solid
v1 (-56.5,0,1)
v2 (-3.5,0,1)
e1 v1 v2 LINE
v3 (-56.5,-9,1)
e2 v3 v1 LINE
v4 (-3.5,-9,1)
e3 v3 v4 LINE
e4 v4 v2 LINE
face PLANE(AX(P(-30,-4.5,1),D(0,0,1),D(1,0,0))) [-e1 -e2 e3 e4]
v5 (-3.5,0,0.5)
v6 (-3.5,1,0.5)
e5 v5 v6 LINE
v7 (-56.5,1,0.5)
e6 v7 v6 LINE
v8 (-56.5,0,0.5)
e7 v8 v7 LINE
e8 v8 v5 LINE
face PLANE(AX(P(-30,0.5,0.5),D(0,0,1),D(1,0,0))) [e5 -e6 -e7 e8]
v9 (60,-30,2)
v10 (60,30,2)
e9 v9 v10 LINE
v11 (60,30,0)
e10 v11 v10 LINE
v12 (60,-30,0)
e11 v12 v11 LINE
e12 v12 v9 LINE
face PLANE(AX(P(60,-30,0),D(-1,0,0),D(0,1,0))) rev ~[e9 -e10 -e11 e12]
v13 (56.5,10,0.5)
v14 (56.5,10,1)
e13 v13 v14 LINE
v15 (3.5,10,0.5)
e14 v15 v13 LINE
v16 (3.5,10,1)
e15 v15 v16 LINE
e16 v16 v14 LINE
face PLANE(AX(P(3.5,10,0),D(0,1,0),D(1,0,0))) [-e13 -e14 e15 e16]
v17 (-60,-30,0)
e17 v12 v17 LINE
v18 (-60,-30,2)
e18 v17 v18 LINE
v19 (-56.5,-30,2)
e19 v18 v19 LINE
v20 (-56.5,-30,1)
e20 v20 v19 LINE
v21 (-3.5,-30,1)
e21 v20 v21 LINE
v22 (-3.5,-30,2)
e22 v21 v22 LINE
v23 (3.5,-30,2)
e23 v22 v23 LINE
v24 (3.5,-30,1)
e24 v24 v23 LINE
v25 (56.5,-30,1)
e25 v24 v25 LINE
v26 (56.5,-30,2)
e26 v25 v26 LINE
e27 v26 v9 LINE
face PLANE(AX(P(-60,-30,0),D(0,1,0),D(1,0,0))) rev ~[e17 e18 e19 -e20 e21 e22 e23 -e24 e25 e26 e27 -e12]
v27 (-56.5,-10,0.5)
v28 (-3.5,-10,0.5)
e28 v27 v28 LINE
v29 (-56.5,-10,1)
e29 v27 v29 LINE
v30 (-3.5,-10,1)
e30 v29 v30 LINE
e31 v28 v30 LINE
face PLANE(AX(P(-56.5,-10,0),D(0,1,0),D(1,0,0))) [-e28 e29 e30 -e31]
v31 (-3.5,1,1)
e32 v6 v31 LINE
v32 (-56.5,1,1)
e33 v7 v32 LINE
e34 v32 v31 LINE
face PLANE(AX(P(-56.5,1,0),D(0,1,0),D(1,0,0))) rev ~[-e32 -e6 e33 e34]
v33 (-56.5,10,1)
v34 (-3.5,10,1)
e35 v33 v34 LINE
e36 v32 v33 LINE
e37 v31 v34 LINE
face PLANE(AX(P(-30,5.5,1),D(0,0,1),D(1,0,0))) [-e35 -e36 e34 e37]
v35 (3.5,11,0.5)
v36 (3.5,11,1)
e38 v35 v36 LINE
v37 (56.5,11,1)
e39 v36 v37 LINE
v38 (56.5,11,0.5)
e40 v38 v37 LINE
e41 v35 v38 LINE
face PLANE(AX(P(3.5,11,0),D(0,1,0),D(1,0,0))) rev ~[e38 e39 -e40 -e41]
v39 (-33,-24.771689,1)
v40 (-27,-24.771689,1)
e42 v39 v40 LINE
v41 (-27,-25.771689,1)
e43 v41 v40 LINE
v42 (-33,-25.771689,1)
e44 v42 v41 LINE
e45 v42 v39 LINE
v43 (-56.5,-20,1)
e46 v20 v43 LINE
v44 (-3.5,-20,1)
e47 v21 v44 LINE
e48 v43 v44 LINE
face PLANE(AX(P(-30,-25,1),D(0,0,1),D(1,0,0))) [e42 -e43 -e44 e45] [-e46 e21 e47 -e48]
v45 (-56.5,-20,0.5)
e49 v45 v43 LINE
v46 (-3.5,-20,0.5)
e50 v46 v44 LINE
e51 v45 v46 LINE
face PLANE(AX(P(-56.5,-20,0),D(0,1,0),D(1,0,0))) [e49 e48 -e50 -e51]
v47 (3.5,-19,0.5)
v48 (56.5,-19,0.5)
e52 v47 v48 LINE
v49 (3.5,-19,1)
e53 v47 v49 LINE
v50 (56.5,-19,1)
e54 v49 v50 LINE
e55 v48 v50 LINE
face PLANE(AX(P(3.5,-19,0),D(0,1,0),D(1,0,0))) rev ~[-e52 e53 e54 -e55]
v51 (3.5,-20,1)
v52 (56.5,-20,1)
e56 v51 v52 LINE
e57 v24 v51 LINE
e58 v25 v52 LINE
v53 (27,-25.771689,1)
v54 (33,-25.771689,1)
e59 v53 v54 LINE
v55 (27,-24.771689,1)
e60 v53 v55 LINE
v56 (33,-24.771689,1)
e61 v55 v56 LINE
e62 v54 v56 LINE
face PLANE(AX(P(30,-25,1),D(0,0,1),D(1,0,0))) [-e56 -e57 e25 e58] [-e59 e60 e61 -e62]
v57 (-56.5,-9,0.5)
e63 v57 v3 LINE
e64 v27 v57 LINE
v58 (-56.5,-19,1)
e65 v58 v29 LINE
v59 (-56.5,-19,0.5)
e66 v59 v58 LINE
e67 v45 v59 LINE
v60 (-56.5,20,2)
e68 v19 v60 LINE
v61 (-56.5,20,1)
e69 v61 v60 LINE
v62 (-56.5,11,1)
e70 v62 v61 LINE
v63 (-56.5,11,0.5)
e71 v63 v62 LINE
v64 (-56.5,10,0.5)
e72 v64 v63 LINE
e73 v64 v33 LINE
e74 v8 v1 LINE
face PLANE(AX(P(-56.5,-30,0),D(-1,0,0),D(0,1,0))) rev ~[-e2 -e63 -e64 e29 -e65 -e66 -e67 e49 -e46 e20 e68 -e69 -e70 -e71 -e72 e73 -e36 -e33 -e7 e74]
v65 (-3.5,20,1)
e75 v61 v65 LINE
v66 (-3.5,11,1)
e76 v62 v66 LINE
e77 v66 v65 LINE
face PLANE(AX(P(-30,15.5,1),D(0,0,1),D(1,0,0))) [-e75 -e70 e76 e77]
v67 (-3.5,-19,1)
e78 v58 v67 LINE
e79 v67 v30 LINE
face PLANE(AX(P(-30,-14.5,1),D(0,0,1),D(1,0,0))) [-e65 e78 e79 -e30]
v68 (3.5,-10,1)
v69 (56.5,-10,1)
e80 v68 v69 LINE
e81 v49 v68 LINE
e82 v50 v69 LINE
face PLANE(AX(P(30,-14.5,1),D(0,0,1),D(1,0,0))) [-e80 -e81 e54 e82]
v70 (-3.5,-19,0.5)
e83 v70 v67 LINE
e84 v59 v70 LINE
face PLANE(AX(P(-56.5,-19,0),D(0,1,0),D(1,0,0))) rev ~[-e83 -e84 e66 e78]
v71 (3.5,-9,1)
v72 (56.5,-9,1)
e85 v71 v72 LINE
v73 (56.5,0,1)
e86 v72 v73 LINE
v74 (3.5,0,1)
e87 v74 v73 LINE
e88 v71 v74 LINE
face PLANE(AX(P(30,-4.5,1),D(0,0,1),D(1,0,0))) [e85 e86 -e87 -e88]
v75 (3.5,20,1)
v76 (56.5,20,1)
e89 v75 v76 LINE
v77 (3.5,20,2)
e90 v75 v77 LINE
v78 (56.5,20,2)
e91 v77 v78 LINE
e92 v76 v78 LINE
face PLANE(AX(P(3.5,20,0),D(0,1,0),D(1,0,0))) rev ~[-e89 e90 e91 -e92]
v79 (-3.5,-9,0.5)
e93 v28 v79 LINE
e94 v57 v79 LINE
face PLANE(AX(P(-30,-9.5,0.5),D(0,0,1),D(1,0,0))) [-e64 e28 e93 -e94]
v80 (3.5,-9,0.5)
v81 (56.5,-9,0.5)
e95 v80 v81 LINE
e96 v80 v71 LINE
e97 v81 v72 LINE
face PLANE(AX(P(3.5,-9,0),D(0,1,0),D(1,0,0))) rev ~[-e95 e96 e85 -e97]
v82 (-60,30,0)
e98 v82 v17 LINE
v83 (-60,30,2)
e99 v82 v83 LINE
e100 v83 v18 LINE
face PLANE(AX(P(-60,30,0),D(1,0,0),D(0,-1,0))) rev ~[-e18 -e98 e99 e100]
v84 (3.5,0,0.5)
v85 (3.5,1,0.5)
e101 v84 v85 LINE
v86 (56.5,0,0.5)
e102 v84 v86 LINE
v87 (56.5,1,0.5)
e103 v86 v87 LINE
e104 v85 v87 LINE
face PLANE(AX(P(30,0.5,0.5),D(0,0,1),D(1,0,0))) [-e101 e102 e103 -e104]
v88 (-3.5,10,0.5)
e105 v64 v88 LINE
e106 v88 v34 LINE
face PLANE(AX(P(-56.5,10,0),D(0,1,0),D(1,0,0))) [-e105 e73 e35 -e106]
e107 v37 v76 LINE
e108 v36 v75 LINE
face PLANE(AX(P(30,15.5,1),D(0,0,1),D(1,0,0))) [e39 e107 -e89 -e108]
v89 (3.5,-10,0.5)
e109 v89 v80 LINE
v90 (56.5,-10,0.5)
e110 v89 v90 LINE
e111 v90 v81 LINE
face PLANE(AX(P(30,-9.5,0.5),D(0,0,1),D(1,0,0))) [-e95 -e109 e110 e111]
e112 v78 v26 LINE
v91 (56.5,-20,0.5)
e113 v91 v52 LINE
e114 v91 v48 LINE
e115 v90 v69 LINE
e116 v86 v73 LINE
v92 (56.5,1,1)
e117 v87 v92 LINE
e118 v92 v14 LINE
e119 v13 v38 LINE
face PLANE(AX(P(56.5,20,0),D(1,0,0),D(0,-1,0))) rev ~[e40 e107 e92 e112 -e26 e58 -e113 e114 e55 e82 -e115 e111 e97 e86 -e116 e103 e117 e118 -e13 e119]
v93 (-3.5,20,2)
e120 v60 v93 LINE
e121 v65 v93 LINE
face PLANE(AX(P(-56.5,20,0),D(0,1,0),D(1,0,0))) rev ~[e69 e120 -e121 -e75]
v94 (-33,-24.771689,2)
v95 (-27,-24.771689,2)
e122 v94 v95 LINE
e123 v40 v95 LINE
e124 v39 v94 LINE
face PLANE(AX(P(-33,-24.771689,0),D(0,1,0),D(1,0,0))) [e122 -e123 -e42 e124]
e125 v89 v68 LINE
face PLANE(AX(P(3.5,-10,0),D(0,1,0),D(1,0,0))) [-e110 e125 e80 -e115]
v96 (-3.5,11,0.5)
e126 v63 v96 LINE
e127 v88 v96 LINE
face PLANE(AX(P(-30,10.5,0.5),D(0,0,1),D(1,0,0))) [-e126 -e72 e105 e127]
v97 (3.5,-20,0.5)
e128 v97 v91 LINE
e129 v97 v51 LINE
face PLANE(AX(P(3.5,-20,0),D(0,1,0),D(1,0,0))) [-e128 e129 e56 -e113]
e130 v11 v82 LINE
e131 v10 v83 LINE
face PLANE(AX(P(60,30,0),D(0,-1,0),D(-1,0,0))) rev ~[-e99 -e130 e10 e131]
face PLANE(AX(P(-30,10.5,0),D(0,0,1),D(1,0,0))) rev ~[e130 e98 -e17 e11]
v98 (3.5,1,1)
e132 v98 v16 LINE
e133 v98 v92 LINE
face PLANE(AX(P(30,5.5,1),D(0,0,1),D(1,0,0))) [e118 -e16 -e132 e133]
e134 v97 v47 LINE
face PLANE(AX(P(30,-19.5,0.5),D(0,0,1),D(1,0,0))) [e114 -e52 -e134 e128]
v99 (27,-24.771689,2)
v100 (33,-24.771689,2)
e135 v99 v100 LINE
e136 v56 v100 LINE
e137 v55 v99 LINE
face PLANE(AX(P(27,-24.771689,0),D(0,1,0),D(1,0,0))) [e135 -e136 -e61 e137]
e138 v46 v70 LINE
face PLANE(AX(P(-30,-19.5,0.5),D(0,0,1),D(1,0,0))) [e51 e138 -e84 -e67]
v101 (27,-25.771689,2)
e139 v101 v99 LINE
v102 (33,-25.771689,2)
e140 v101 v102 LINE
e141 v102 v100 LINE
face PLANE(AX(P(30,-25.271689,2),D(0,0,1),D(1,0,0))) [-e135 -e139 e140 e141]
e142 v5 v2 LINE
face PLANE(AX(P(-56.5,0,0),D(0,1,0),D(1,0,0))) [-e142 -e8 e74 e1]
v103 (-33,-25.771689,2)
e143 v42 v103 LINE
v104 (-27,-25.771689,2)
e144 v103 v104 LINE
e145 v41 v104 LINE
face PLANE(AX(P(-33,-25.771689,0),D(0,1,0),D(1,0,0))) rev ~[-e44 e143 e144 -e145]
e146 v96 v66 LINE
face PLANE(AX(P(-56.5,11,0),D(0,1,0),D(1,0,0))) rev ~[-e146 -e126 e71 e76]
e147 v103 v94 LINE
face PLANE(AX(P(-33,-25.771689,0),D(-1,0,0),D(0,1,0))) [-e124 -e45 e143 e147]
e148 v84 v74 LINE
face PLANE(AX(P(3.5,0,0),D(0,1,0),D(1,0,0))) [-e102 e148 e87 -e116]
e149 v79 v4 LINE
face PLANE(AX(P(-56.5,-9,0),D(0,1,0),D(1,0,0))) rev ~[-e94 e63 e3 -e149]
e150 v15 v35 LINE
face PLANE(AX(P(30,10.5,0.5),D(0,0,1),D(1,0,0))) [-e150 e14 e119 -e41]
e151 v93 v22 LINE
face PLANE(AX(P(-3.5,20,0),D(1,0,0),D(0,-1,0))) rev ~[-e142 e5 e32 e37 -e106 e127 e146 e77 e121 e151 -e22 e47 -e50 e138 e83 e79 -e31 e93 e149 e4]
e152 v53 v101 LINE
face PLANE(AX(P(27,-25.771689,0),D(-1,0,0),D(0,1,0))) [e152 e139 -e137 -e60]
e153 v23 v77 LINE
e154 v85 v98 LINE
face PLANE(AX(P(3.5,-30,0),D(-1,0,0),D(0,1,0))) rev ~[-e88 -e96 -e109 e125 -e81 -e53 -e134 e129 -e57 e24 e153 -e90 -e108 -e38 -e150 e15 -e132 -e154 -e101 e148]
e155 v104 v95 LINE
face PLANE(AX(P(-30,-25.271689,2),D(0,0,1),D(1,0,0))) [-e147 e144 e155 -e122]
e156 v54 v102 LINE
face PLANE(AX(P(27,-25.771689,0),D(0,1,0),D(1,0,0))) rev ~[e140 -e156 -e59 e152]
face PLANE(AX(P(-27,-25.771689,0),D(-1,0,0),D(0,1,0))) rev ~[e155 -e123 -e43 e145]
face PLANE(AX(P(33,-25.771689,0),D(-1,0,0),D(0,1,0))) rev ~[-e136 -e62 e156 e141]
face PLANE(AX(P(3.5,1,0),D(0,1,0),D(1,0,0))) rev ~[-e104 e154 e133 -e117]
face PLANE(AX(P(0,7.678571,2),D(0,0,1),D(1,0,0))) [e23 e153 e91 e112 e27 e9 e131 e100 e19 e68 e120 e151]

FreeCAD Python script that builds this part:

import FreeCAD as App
import Part
import Sketcher
from FreeCAD import Vector


def add_polygon(sketch, points):
    """Adds a closed chain of lines whose ends are joined by coincident constraints."""
    first, n = sketch.GeometryCount, len(points)
    for a, b in zip(points, points[1:] + points[:1]):
        sketch.addGeometry(Part.LineSegment(App.Vector(*a, 0), App.Vector(*b, 0)), False)
    for i in range(n):
        sketch.addConstraint(Sketcher.Constraint("Coincident", first + i, 2, first + (i + 1) % n, 1))

doc = App.newDocument("Part")
body = doc.addObject("PartDesign::Body", "Body")

sketch1 = body.newObject("Sketcher::SketchObject", "Sketch")
sketch1.AttachmentSupport = (doc.getObject("XY_Plane"), [""])
sketch1.MapMode = "FlatFace"
add_polygon(sketch1, [(56.5, -30), (60, -30), (60, 30), (-60, 30), (-60, -30), (-56.5, -30), (-56.5, 20), (-3.5, 20), (-3.5, -30), (3.5, -30), (3.5, 20), (56.5, 20)])
sketch1.addConstraint([
    Sketcher.Constraint("Horizontal", 0),
    Sketcher.Constraint("Vertical", 1),
    Sketcher.Constraint("Horizontal", 2),
    Sketcher.Constraint("Vertical", 3),
    Sketcher.Constraint("Horizontal", 4),
    Sketcher.Constraint("Vertical", 5),
    Sketcher.Constraint("Horizontal", 6),
    Sketcher.Constraint("Vertical", 7),
    Sketcher.Constraint("Horizontal", 8),
    Sketcher.Constraint("Vertical", 9),
    Sketcher.Constraint("Horizontal", 10),
    Sketcher.Constraint("Vertical", 11),
    Sketcher.Constraint("Symmetric", 0, 2, 2, 2, -1, 1),
    Sketcher.Constraint("Symmetric", 6, 2, 9, 2, -2),
    Sketcher.Constraint("Symmetric", 4, 2, 11, 2, -2),
    Sketcher.Constraint("Horizontal", 4, 2, 7, 2),
    Sketcher.Constraint("DistanceX", 2, 2, 2, 1, 120.0),
    Sketcher.Constraint("DistanceX", 6, 1, 6, 2, 53.0),
    Sketcher.Constraint("DistanceX", 8, 1, 8, 2, 7.0),
    Sketcher.Constraint("DistanceY", 1, 1, 1, 2, 60.0),
    Sketcher.Constraint("DistanceY", 5, 1, 5, 2, 50.0),
])
pad1 = body.newObject("PartDesign::Pad", "Pad")
pad1.Profile = sketch1
pad1.Length = 2

sketch2 = body.newObject("Sketcher::SketchObject", "Sketch001")
sketch2.AttachmentSupport = (doc.getObject("XY_Plane"), [""])
sketch2.MapMode = "FlatFace"
add_polygon(sketch2, [(-56.5, 20), (-56.5, 11), (-3.5, 11), (-3.5, 20)])
add_polygon(sketch2, [(-56.5, 10), (-56.5, 1), (-3.5, 1), (-3.5, 10)])
add_polygon(sketch2, [(-56.5, 0), (-56.5, -9), (-3.5, -9), (-3.5, 0)])
add_polygon(sketch2, [(-56.5, -10), (-56.5, -19), (-3.5, -19), (-3.5, -10)])
add_polygon(sketch2, [(-56.5, -20), (-56.5, -30), (-3.5, -30), (-3.5, -20)])
add_polygon(sketch2, [(-27, -25.8), (-33, -25.8), (-33, -24.8), (-27, -24.8)])
add_polygon(sketch2, [(3.5, -20), (3.5, -30), (56.5, -30), (56.5, -20)])
add_polygon(sketch2, [(33, -25.8), (27, -25.8), (27, -24.8), (33, -24.8)])
add_polygon(sketch2, [(3.5, -10), (3.5, -19), (56.5, -19), (56.5, -10)])
add_polygon(sketch2, [(3.5, 0), (3.5, -9), (56.5, -9), (56.5, 0)])
add_polygon(sketch2, [(3.5, 10), (3.5, 1), (56.5, 1), (56.5, 10)])
add_polygon(sketch2, [(3.5, 20), (3.5, 11), (56.5, 11), (56.5, 20)])
sketch2.addConstraint([
    Sketcher.Constraint("Vertical", 0),
    Sketcher.Constraint("Horizontal", 1),
    Sketcher.Constraint("Vertical", 2),
    Sketcher.Constraint("Horizontal", 3),
    Sketcher.Constraint("Vertical", 4),
    Sketcher.Constraint("Horizontal", 5),
    Sketcher.Constraint("Vertical", 6),
    Sketcher.Constraint("Horizontal", 7),
    Sketcher.Constraint("Vertical", 8),
    Sketcher.Constraint("Horizontal", 9),
    Sketcher.Constraint("Vertical", 10),
    Sketcher.Constraint("Horizontal", 11),
    Sketcher.Constraint("Vertical", 12),
    Sketcher.Constraint("Horizontal", 13),
    Sketcher.Constraint("Vertical", 14),
    Sketcher.Constraint("Horizontal", 15),
    Sketcher.Constraint("Vertical", 16),
    Sketcher.Constraint("Horizontal", 17),
    Sketcher.Constraint("Vertical", 18),
    Sketcher.Constraint("Horizontal", 19),
    Sketcher.Constraint("Horizontal", 20),
    Sketcher.Constraint("Vertical", 21),
    Sketcher.Constraint("Horizontal", 22),
    Sketcher.Constraint("Vertical", 23),
    Sketcher.Constraint("Vertical", 24),
    Sketcher.Constraint("Horizontal", 25),
    Sketcher.Constraint("Vertical", 26),
    Sketcher.Constraint("Horizontal", 27),
    Sketcher.Constraint("Horizontal", 28),
    Sketcher.Constraint("Vertical", 29),
    Sketcher.Constraint("Horizontal", 30),
    Sketcher.Constraint("Vertical", 31),
    Sketcher.Constraint("Vertical", 32),
    Sketcher.Constraint("Horizontal", 33),
    Sketcher.Constraint("Vertical", 34),
    Sketcher.Constraint("Horizontal", 35),
    Sketcher.Constraint("Vertical", 36),
    Sketcher.Constraint("Horizontal", 37),
    Sketcher.Constraint("Vertical", 38),
    Sketcher.Constraint("Horizontal", 39),
    Sketcher.Constraint("Vertical", 40),
    Sketcher.Constraint("Horizontal", 41),
    Sketcher.Constraint("Vertical", 42),
    Sketcher.Constraint("Horizontal", 43),
    Sketcher.Constraint("Vertical", 44),
    Sketcher.Constraint("Horizontal", 45),
    Sketcher.Constraint("Vertical", 46),
    Sketcher.Constraint("Horizontal", 47),
    Sketcher.Constraint("Symmetric", 3, 2, 26, 2, -1, 1),
    Sketcher.Constraint("Symmetric", 7, 2, 34, 2, -1, 1),
    Sketcher.Constraint("Symmetric", 11, 2, 38, 2, -1, 1),
    Sketcher.Constraint("Symmetric", 15, 2, 42, 2, -1, 1),
    Sketcher.Constraint("Symmetric", 19, 2, 46, 2, -1, 1),
    Sketcher.Constraint("Symmetric", 17, 2, 24, 2, -2),
    Sketcher.Constraint("Symmetric", 19, 2, 26, 2, -2),
    Sketcher.Constraint("Symmetric", 23, 2, 28, 2, -2),
    Sketcher.Constraint("Symmetric", 21, 2, 30, 2, -2),
    Sketcher.Constraint("Symmetric", 13, 2, 32, 2, -2),
    Sketcher.Constraint("Symmetric", 15, 2, 34, 2, -2),
    Sketcher.Constraint("Symmetric", 9, 2, 36, 2, -2),
    Sketcher.Constraint("Symmetric", 5, 2, 40, 2, -2),
    Sketcher.Constraint("Symmetric", 1, 2, 44, 2, -2),
    Sketcher.Constraint("PointOnObject", 10, 2, -1),
    Sketcher.Constraint("Vertical", 3, 2, 4, 2),
    Sketcher.Constraint("Vertical", 2, 2, 5, 2),
    Sketcher.Constraint("Vertical", 7, 2, 8, 2),
    Sketcher.Constraint("Vertical", 6, 2, 9, 2),
    Sketcher.Constraint("Vertical", 10, 2, 13, 2),
    Sketcher.Constraint("Vertical", 14, 2, 17, 2),
    Sketcher.Constraint("Equal", 2, 4),
    Sketcher.Constraint("Equal", 6, 8),
    Sketcher.Constraint("Equal", 10, 12),
    Sketcher.Constraint("DistanceX", 1, 1, 1, 2, 53.0),
    Sketcher.Constraint("DistanceX", 20, 2, 20, 1, 6.0),
    Sketcher.Constraint("DistanceY", 0, 2, 0, 1, 9.0),
    Sketcher.Constraint("DistanceY", 16, 2, 16, 1, 10.0),
    Sketcher.Constraint("DistanceY", 21, 1, 21, 2, 1.0),
    Sketcher.Constraint("DistanceY", -1, 1, 0, 2, 11.0),
    Sketcher.Constraint("DistanceY", -1, 1, 4, 2, 1.0),
    Sketcher.Constraint("DistanceX", 20, 2, -1, 1, 33.0),
    Sketcher.Constraint("DistanceX", 17, 2, 24, 2, 7.0),
    Sketcher.Constraint("DistanceY", 20, 2, -1, 1, 25.771689),
])
pad2 = body.newObject("PartDesign::Pad", "Pad001")
pad2.Profile = sketch2
pad2.Length = 1

sketch3 = body.newObject("Sketcher::SketchObject", "Sketch002")
sketch3.AttachmentSupport = (doc.getObject("XY_Plane"), [""])
sketch3.MapMode = "FlatFace"
add_polygon(sketch3, [(-56.5, 11), (-56.5, 10), (-3.5, 10), (-3.5, 11)])
add_polygon(sketch3, [(-56.5, 1), (-56.5, 0), (-3.5, 0), (-3.5, 1)])
add_polygon(sketch3, [(-56.5, -9), (-56.5, -10), (-3.5, -10), (-3.5, -9)])
add_polygon(sketch3, [(-56.5, -19), (-56.5, -20), (-3.5, -20), (-3.5, -19)])
add_polygon(sketch3, [(3.5, -19), (3.5, -20), (56.5, -20), (56.5, -19)])
add_polygon(sketch3, [(3.5, -9), (3.5, -10), (56.5, -10), (56.5, -9)])
add_polygon(sketch3, [(3.5, 1), (3.5, 0), (56.5, 0), (56.5, 1)])
add_polygon(sketch3, [(3.5, 11), (3.5, 10), (56.5, 10), (56.5, 11)])
sketch3.addConstraint([
    Sketcher.Constraint("Vertical", 0),
    Sketcher.Constraint("Horizontal", 1),
    Sketcher.Constraint("Vertical", 2),
    Sketcher.Constraint("Horizontal", 3),
    Sketcher.Constraint("Vertical", 4),
    Sketcher.Constraint("Horizontal", 5),
    Sketcher.Constraint("Vertical", 6),
    Sketcher.Constraint("Horizontal", 7),
    Sketcher.Constraint("Vertical", 8),
    Sketcher.Constraint("Horizontal", 9),
    Sketcher.Constraint("Vertical", 10),
    Sketcher.Constraint("Horizontal", 11),
    Sketcher.Constraint("Vertical", 12),
    Sketcher.Constraint("Horizontal", 13),
    Sketcher.Constraint("Vertical", 14),
    Sketcher.Constraint("Horizontal", 15),
    Sketcher.Constraint("Vertical", 16),
    Sketcher.Constraint("Horizontal", 17),
    Sketcher.Constraint("Vertical", 18),
    Sketcher.Constraint("Horizontal", 19),
    Sketcher.Constraint("Vertical", 20),
    Sketcher.Constraint("Horizontal", 21),
    Sketcher.Constraint("Vertical", 22),
    Sketcher.Constraint("Horizontal", 23),
    Sketcher.Constraint("Vertical", 24),
    Sketcher.Constraint("Horizontal", 25),
    Sketcher.Constraint("Vertical", 26),
    Sketcher.Constraint("Horizontal", 27),
    Sketcher.Constraint("Vertical", 28),
    Sketcher.Constraint("Horizontal", 29),
    Sketcher.Constraint("Vertical", 30),
    Sketcher.Constraint("Horizontal", 31),
    Sketcher.Constraint("Symmetric", 1, 2, 20, 2, -1, 1),
    Sketcher.Constraint("Symmetric", 5, 2, 24, 2, -1, 1),
    Sketcher.Constraint("Symmetric", 9, 2, 28, 2, -1, 1),
    Sketcher.Constraint("Symmetric", 13, 2, 16, 2, -2),
    Sketcher.Constraint("Symmetric", 15, 2, 18, 2, -2),
    Sketcher.Constraint("Symmetric", 9, 2, 20, 2, -2),
    Sketcher.Constraint("Symmetric", 11, 2, 22, 2, -2),
    Sketcher.Constraint("Symmetric", 4, 2, 25, 2, -2),
    Sketcher.Constraint("Symmetric", 3, 2, 30, 2, -2),
    Sketcher.Constraint("Horizontal", 7, 2, 26, 2),
    Sketcher.Constraint("Vertical", 3, 2, 4, 2),
    Sketcher.Constraint("Vertical", 2, 2, 5, 2),
    Sketcher.Constraint("Vertical", 7, 2, 8, 2),
    Sketcher.Constraint("Vertical", 11, 2, 12, 2),
    Sketcher.Constraint("Vertical", 10, 2, 13, 2),
    Sketcher.Constraint("Equal", 2, 4),
    Sketcher.Constraint("Equal", 6, 8),
    Sketcher.Constraint("Equal", 10, 12),
    Sketcher.Constraint("DistanceX", 1, 1, 1, 2, 53.0),
    Sketcher.Constraint("DistanceY", 0, 2, 0, 1, 1.0),
    Sketcher.Constraint("DistanceY", -1, 1, 0, 2, 10.0),
    Sketcher.Constraint("DistanceY", 12, 2, -1, 1, 20.0),
    Sketcher.Constraint("DistanceX", 13, 2, 16, 2, 7.0),
])
pad3 = body.newObject("PartDesign::Pad", "Pad002")
pad3.Profile = sketch3
pad3.Length = 0.5

sketch4 = body.newObject("Sketcher::SketchObject", "Sketch003")
sketch4.AttachmentSupport = (doc.getObject("XY_Plane"), [""])
sketch4.MapMode = "FlatFace"
add_polygon(sketch4, [(-33, -24.8), (-33, -25.8), (-27, -25.8), (-27, -24.8)])
add_polygon(sketch4, [(27, -24.8), (27, -25.8), (33, -25.8), (33, -24.8)])
sketch4.addConstraint([
    Sketcher.Constraint("Vertical", 0),
    Sketcher.Constraint("Horizontal", 1),
    Sketcher.Constraint("Vertical", 2),
    Sketcher.Constraint("Horizontal", 3),
    Sketcher.Constraint("Vertical", 4),
    Sketcher.Constraint("Horizontal", 5),
    Sketcher.Constraint("Vertical", 6),
    Sketcher.Constraint("Horizontal", 7),
    Sketcher.Constraint("Symmetric", 1, 2, 4, 2, -2),
    Sketcher.Constraint("Symmetric", 3, 2, 6, 2, -2),
    Sketcher.Constraint("DistanceX", 1, 1, 1, 2, 6.0),
    Sketcher.Constraint("DistanceY", 0, 2, 0, 1, 1.0),
    Sketcher.Constraint("DistanceX", 0, 2, -1, 1, 33.0),
    Sketcher.Constraint("DistanceY", 0, 2, -1, 1, 25.771689),
])
pad4 = body.newObject("PartDesign::Pad", "Pad003")
pad4.Profile = sketch4
pad4.Length = 2

doc.recompute()
